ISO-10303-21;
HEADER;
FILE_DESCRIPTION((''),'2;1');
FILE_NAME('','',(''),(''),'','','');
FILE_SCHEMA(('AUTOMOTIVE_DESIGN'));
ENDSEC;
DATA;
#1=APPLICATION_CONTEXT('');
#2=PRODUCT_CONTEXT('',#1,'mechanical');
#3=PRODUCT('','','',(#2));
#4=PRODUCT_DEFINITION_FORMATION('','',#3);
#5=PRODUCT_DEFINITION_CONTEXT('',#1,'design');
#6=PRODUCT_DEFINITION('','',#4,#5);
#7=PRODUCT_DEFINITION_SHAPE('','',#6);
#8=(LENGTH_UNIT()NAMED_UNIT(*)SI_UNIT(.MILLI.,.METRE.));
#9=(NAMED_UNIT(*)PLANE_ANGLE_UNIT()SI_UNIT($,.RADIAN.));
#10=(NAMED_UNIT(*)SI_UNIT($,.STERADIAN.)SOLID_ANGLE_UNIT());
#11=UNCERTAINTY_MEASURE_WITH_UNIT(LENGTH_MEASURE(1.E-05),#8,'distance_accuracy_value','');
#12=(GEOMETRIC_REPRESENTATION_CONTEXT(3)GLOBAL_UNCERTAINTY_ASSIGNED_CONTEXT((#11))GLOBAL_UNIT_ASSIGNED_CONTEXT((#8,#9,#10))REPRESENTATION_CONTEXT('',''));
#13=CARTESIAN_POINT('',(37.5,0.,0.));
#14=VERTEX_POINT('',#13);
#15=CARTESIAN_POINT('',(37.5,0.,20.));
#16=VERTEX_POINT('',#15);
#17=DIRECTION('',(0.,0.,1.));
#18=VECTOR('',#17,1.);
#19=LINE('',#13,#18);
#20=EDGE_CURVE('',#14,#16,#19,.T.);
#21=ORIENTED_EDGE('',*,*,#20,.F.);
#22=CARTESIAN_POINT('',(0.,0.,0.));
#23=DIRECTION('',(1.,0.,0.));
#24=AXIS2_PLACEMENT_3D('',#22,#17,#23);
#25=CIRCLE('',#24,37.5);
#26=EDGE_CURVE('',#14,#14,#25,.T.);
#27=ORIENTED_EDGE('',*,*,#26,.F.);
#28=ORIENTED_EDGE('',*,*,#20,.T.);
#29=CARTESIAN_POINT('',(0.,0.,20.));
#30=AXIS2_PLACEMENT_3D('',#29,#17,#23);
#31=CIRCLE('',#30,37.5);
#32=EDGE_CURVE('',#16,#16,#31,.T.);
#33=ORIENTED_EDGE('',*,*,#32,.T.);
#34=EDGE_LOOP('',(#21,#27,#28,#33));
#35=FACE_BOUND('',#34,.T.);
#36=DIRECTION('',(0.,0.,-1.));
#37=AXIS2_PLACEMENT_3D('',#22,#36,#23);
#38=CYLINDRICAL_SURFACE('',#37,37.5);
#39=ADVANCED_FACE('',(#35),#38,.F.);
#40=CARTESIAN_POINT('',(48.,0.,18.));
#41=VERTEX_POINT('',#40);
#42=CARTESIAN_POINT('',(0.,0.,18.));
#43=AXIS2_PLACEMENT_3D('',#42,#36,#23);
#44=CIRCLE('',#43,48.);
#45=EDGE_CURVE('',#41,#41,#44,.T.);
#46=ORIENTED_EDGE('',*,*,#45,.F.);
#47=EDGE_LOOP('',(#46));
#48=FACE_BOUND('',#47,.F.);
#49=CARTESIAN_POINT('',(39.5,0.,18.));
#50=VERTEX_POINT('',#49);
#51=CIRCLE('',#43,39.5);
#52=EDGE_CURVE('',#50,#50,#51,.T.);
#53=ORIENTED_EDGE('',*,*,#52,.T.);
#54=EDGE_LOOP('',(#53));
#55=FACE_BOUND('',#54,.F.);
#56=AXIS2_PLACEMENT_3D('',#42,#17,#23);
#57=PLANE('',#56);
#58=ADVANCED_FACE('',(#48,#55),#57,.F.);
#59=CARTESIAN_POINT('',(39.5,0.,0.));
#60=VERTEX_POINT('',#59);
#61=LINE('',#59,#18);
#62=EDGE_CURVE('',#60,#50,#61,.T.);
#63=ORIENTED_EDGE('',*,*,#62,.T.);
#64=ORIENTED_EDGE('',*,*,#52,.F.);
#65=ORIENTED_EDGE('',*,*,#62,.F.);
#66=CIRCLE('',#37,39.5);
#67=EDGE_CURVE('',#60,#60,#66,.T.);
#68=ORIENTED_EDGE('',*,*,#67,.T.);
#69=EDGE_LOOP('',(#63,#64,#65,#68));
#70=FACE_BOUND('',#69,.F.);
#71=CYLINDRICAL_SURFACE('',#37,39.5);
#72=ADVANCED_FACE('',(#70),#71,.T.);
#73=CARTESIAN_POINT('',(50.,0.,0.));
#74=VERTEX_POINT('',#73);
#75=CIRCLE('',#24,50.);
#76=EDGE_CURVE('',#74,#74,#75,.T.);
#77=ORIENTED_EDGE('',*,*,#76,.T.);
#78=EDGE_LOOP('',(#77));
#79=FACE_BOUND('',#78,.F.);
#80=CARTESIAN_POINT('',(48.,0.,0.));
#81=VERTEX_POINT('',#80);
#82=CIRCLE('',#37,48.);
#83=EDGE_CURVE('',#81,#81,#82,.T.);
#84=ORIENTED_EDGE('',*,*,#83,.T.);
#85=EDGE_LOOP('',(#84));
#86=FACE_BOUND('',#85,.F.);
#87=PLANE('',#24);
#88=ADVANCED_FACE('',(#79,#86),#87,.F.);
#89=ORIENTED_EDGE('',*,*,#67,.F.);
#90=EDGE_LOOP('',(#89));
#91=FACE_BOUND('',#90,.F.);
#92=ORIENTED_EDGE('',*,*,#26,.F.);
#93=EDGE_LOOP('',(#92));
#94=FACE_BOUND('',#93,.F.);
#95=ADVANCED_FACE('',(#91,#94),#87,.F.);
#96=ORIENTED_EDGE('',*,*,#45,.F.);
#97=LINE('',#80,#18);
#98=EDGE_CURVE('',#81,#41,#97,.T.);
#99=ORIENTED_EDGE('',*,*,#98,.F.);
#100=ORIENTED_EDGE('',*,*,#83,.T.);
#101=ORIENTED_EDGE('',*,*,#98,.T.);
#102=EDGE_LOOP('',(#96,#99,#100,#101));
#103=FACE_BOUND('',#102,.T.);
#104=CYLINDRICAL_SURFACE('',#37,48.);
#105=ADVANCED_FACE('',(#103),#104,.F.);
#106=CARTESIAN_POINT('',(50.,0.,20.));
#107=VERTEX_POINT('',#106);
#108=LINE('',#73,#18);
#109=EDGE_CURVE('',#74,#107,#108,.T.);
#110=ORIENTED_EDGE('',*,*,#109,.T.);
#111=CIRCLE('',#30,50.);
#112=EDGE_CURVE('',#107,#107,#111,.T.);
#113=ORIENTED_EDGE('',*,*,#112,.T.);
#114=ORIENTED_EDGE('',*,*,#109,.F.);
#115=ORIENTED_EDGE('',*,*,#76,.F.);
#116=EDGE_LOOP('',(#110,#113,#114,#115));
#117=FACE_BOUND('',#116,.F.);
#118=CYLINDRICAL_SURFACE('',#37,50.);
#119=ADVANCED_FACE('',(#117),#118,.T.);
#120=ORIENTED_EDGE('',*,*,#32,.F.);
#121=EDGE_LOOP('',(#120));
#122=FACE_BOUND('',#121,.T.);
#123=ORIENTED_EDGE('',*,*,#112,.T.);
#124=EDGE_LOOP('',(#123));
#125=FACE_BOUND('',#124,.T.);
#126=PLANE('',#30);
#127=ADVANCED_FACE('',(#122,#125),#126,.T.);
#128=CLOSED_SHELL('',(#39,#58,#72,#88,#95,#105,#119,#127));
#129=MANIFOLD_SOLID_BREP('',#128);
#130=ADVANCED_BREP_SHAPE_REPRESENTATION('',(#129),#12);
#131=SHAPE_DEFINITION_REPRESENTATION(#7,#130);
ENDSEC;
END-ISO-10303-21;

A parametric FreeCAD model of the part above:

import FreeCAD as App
import Part
import Sketcher
Q = App.Units.Quantity


def faces_at(feature, points):
    """Names of the faces that lie closest to the given points."""
    faces = feature.Shape.Faces
    near = lambda p: min(range(len(faces)), key=lambda i: faces[i].distToShape(Part.Vertex(*p))[0])
    return sorted({f"Face{near(p) + 1}" for p in points})

doc = App.newDocument("Part")
body = doc.addObject("PartDesign::Body", "Body")

# Sketch on XY plane
sketch1 = body.newObject("Sketcher::SketchObject", "Sketch")
sketch1.AttachmentSupport = (doc.getObject("XY_Plane"), [""])
sketch1.MapMode = "FlatFace"
sketch1.addGeometry([
    Part.Circle(App.Vector(0, 0, 0), App.Vector(0, 0, 1), 50),
    Part.Circle(App.Vector(0, 0, 0), App.Vector(0, 0, 1), 38),
], False)
sketch1.addConstraint([
    Sketcher.Constraint("Coincident", 0, 3, -1, 1),
    Sketcher.Constraint("Coincident", 1, 3, -1, 1),
    Sketcher.Constraint("Diameter", 0, Q("100 mm")),
    Sketcher.Constraint("Diameter", 1, Q("75 mm")),
])
pad1 = body.newObject("PartDesign::Pad", "Pad")
pad1.Profile = sketch1
pad1.Length = 20
doc.recompute()

thickness = body.newObject("PartDesign::Thickness", "Thickness")
thickness.Base = (pad1, faces_at(pad1, [(3.252, -45.513, 0)]))
thickness.Value = 2
thickness.Reversed = True
thickness.Join = "Intersection"

doc.recompute()
